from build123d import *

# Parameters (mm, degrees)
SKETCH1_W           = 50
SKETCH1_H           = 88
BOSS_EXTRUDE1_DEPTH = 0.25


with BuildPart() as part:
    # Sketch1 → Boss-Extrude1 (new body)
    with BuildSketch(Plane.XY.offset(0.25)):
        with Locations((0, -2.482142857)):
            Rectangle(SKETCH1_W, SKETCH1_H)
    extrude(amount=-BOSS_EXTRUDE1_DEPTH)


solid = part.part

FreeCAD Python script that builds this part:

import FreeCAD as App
import Part
import Sketcher
from FreeCAD import Vector
Q = App.Units.Quantity

doc = App.newDocument("Part")
params = doc.addObject("Spreadsheet::Sheet", "Params")
for row, (alias, value) in enumerate([
    ("sketch1_width", "50 mm"),
    ("sketch1_height", "88 mm"),
    ("pad1_length", "0.25 mm"),
], start=1):
    params.set(f"A{row}", alias)
    params.set(f"B{row}", "=" + value)
    params.setAlias(f"B{row}", alias)

body = doc.addObject("PartDesign::Body", "Body")

# Sketch on XY plane
sketch1 = body.newObject("Sketcher::SketchObject", "Sketch")
sketch1.AttachmentSupport = (doc.getObject("XY_Plane"), [""])
sketch1.MapMode = "FlatFace"
sketch1.AttachmentOffset = App.Placement(Vector(0, 0, 0.25), App.Rotation())
sketch1.addGeometry(Part.LineSegment(Vector(-25, 42, 0), Vector(-25, -46, 0)), False)
sketch1.addGeometry(Part.LineSegment(Vector(-25, -46, 0), Vector(25, -46, 0)), False)
sketch1.addGeometry(Part.LineSegment(Vector(25, -46, 0), Vector(25, 42, 0)), False)
sketch1.addGeometry(Part.LineSegment(Vector(25, 42, 0), Vector(-25, 42, 0)), False)
sketch1.addConstraint(Sketcher.Constraint("Coincident", 0, 2, 1, 1))
sketch1.addConstraint(Sketcher.Constraint("Coincident", 1, 2, 2, 1))
sketch1.addConstraint(Sketcher.Constraint("Coincident", 2, 2, 3, 1))
sketch1.addConstraint(Sketcher.Constraint("Coincident", 3, 2, 0, 1))
sketch1.addConstraint(Sketcher.Constraint("Vertical", 0))
sketch1.addConstraint(Sketcher.Constraint("Horizontal", 1))
sketch1.addConstraint(Sketcher.Constraint("Vertical", 2))
sketch1.addConstraint(Sketcher.Constraint("Horizontal", 3))
sketch1.addConstraint(Sketcher.Constraint("DistanceX", 1, 1, 1, 2, Q("50 mm")))
sketch1.addConstraint(Sketcher.Constraint("DistanceY", 0, 2, 0, 1, Q("88 mm")))
sketch1.addConstraint(Sketcher.Constraint("DistanceX", 0, 2, -1, 1, Q("25 mm")))
sketch1.addConstraint(Sketcher.Constraint("DistanceY", 0, 2, -1, 1, Q("46.482143 mm")))
sketch1.setExpression("Constraints[8]", "Params.sketch1_width")
sketch1.setExpression("Constraints[9]", "Params.sketch1_height")
pad1 = body.newObject("PartDesign::Pad", "Pad")
pad1.Profile = sketch1
pad1.setExpression("Length", "Params.pad1_length")
pad1.Reversed = True

doc.recompute()
